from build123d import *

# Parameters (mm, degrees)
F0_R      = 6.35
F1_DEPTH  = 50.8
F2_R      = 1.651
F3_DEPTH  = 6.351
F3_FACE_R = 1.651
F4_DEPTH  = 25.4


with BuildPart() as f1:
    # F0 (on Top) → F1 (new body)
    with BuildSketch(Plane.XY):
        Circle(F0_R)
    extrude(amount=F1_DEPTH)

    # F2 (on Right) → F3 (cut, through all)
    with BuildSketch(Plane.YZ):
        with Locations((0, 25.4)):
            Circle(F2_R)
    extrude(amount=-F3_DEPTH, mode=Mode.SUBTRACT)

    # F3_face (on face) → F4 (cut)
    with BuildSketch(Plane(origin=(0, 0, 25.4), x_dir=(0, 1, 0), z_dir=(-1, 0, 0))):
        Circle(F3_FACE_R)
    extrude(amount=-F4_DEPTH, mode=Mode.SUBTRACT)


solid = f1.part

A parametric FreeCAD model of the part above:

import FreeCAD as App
import Part
import Sketcher
Q = App.Units.Quantity

doc = App.newDocument("Part")
body = doc.addObject("PartDesign::Body", "Body")

# Sketch on XY plane
sketch1 = body.newObject("Sketcher::SketchObject", "Sketch")
sketch1.AttachmentSupport = (doc.getObject("XY_Plane"), [""])
sketch1.MapMode = "FlatFace"
sketch1.addGeometry(Part.Circle(App.Vector(0, 0, 0), App.Vector(0, 0, 1), 6.35), False)
sketch1.addConstraint(Sketcher.Constraint("Coincident", 0, 3, -1, 1))
sketch1.addConstraint(Sketcher.Constraint("Diameter", 0, Q("0.5 in")))
pad1 = body.newObject("PartDesign::Pad", "Pad")
pad1.Profile = sketch1
pad1.Length = Q("2 in")

# Sketch on YZ plane
sketch2 = body.newObject("Sketcher::SketchObject", "Sketch001")
sketch2.AttachmentSupport = (doc.getObject("YZ_Plane"), [""])
sketch2.MapMode = "FlatFace"
sketch2.addGeometry(Part.Circle(App.Vector(0, 25.4, 0), App.Vector(0, 0, 1), 1.651), False)
sketch2.addConstraint(Sketcher.Constraint("PointOnObject", 0, 3, -2))
sketch2.addConstraint(Sketcher.Constraint("Diameter", 0, Q("0.13 in")))
sketch2.addConstraint(Sketcher.Constraint("DistanceY", -1, 1, 0, 3, Q("1 in")))
pocket1 = body.newObject("PartDesign::Pocket", "Pocket")
pocket1.Profile = sketch2
pocket1.Type = "ThroughAll"

# Sketch on YZ plane
sketch3 = body.newObject("Sketcher::SketchObject", "Sketch002")
sketch3.AttachmentSupport = (doc.getObject("YZ_Plane"), [""])
sketch3.MapMode = "FlatFace"
sketch3.addGeometry(Part.Circle(App.Vector(0, 25.4, 0), App.Vector(0, 0, 1), 1.651), False)
sketch3.addConstraint(Sketcher.Constraint("PointOnObject", 0, 3, -2))
sketch3.addConstraint(Sketcher.Constraint("Diameter", 0, Q("0.13 in")))
sketch3.addConstraint(Sketcher.Constraint("DistanceY", -1, 1, 0, 3, Q("1 in")))
pocket2 = body.newObject("PartDesign::Pocket", "Pocket001")
pocket2.Profile = sketch3
pocket2.Length = Q("1 in")
pocket2.Reversed = True

doc.recompute()
